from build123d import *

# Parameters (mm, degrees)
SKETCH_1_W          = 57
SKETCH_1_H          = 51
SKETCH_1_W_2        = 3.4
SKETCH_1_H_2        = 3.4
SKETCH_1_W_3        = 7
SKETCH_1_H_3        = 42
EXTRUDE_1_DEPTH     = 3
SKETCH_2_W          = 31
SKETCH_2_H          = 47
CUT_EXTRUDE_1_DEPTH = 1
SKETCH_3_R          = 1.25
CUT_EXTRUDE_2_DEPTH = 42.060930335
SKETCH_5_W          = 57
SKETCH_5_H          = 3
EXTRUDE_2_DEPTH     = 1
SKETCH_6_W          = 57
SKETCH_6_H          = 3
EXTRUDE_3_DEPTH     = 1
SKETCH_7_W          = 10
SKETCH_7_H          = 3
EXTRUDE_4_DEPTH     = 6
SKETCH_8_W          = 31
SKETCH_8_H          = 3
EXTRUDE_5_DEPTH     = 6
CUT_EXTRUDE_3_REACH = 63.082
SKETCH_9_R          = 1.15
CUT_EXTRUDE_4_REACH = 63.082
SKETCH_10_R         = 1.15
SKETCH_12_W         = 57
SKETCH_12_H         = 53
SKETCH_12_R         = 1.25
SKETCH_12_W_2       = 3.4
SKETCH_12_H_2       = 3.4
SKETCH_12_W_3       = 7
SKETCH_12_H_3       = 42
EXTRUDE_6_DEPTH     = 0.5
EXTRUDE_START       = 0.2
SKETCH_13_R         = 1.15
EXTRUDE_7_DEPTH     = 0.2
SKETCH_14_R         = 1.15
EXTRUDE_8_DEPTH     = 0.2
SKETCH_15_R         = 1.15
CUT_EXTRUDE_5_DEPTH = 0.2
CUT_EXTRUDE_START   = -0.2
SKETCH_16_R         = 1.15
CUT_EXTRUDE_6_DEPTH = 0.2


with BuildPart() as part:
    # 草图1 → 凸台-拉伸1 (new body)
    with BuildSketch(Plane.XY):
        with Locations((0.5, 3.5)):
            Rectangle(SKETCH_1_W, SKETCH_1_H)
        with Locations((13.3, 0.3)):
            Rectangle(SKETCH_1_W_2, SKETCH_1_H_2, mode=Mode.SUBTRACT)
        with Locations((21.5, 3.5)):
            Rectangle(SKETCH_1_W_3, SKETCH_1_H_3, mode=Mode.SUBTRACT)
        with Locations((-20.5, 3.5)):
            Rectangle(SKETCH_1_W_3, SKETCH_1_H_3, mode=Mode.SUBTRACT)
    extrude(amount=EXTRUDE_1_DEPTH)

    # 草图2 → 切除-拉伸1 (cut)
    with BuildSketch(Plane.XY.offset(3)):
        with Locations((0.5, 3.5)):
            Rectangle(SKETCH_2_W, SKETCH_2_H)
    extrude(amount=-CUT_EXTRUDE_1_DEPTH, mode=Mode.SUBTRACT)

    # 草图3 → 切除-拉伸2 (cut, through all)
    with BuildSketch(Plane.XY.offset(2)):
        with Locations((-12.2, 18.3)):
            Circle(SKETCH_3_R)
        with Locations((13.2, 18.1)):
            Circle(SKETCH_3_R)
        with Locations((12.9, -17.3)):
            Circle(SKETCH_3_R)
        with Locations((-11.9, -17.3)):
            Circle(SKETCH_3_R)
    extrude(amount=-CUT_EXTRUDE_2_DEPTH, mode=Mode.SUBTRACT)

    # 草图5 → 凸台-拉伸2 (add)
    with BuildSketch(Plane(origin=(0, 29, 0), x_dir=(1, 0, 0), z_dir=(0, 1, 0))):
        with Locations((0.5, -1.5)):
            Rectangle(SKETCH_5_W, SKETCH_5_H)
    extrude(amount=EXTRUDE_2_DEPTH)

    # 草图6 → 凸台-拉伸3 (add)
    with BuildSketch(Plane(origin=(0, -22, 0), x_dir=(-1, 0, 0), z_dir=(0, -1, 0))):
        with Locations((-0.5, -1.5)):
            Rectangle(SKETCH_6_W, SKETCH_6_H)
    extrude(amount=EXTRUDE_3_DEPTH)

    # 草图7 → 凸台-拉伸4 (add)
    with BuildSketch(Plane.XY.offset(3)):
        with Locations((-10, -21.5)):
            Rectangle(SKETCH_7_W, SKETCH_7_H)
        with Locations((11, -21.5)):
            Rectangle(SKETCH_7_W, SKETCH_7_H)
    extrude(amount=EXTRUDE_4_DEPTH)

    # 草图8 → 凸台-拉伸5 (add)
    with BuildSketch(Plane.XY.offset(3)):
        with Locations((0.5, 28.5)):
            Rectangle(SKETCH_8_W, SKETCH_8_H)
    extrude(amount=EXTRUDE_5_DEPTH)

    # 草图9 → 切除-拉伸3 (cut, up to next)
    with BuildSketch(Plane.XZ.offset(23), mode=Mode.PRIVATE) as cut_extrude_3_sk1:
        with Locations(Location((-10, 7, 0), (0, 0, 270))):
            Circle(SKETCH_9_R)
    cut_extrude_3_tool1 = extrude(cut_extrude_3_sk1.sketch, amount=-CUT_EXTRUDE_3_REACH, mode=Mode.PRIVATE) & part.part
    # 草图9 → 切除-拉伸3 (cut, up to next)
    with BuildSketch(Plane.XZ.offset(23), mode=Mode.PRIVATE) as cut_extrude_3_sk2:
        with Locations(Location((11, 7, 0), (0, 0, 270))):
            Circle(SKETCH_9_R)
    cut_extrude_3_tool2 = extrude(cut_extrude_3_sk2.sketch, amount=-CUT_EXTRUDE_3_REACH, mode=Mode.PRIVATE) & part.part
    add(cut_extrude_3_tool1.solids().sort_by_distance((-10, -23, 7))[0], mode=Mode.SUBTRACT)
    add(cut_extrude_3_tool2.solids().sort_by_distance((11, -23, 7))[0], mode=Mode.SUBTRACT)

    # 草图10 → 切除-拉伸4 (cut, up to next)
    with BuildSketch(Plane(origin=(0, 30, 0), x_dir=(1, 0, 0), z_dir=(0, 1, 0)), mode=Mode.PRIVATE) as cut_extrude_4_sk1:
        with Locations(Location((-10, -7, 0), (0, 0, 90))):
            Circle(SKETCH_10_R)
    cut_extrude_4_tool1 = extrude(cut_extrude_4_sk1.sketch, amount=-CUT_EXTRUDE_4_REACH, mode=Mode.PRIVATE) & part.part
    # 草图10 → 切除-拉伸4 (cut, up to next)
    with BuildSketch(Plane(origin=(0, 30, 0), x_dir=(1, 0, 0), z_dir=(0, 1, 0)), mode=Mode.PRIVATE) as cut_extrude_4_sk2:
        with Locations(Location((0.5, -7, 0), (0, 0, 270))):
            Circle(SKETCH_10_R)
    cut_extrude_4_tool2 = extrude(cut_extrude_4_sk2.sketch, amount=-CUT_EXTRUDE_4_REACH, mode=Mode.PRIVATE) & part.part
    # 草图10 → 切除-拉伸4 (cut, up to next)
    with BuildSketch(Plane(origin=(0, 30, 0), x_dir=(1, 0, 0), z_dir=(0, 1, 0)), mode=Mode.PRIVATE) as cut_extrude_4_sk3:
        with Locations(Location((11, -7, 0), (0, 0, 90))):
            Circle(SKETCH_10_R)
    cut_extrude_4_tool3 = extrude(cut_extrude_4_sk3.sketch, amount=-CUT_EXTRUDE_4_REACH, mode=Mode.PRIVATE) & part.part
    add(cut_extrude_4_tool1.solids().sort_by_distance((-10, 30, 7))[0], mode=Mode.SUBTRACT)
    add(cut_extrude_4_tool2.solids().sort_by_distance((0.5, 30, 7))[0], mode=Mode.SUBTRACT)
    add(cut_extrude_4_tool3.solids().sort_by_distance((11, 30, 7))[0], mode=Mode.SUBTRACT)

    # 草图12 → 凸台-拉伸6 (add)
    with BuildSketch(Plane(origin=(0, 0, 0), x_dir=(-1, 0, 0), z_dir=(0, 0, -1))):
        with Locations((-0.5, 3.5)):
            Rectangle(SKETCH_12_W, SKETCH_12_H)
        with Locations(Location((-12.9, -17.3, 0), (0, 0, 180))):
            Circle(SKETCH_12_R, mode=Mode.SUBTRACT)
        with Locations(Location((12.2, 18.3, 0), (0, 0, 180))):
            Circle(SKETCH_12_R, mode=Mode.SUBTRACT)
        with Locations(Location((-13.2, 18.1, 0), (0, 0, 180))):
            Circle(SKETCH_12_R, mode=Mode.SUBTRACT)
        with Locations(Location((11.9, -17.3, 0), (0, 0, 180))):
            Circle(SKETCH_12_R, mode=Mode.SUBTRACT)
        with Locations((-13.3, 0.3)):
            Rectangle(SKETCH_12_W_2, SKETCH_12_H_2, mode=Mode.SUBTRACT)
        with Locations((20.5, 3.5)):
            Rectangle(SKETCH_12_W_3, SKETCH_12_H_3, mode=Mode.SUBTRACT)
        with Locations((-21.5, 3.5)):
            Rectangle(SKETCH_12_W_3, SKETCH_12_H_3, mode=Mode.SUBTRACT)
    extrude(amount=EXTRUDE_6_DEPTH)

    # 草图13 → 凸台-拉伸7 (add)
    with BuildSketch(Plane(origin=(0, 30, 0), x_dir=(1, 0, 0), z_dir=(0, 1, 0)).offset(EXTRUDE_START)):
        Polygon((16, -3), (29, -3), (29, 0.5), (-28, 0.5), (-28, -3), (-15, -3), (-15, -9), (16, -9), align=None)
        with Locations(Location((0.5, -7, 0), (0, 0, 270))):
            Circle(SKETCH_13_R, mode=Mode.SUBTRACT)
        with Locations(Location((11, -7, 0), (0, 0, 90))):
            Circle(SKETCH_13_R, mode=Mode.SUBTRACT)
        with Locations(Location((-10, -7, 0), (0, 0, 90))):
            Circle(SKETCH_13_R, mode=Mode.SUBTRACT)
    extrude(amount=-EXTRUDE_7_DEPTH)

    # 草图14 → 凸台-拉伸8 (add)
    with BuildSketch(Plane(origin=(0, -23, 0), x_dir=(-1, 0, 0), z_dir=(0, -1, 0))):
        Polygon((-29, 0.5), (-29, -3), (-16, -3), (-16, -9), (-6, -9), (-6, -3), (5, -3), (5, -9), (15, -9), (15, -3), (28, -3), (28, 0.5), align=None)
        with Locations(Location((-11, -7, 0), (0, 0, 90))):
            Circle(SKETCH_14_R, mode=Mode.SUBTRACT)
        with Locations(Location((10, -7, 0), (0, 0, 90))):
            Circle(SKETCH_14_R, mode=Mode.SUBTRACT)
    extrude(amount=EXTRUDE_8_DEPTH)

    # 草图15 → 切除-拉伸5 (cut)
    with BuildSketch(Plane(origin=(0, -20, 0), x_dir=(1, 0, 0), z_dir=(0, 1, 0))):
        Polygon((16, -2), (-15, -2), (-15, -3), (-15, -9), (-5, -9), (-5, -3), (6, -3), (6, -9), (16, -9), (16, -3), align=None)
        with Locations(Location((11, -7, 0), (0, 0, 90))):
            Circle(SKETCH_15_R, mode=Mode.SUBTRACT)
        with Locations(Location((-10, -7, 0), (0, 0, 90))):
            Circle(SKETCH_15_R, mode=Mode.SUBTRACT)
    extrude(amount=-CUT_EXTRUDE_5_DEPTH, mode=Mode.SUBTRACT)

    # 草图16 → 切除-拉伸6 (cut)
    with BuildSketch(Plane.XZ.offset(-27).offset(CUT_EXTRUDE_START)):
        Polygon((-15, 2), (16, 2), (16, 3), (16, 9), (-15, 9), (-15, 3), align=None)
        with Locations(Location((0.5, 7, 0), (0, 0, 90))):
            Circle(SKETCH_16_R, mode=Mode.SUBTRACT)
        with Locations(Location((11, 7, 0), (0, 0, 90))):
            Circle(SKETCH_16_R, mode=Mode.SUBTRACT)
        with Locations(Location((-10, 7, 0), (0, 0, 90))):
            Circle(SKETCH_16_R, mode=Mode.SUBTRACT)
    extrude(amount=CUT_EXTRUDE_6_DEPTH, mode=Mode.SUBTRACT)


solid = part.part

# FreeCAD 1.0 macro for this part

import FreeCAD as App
import Part
import Sketcher
Q = App.Units.Quantity

doc = App.newDocument("Part")
body = doc.addObject("PartDesign::Body", "Body")

# Sketch on XY plane
sketch1 = body.newObject("Sketcher::SketchObject", "Sketch")
sketch1.AttachmentSupport = (doc.getObject("XY_Plane"), [""])
sketch1.MapMode = "FlatFace"
sketch1.addGeometry([
    Part.LineSegment(App.Vector(-28, 29, 0), App.Vector(-28, -22, 0)),  # 0
    Part.LineSegment(App.Vector(-28, -22, 0), App.Vector(29, -22, 0)),  # 1
    Part.LineSegment(App.Vector(29, -22, 0), App.Vector(29, 29, 0)),  # 2
    Part.LineSegment(App.Vector(29, 29, 0), App.Vector(-28, 29, 0)),  # 3
    Part.LineSegment(App.Vector(15, -1.4, 0), App.Vector(11.6, -1.4, 0)),  # 4
    Part.LineSegment(App.Vector(11.6, -1.4, 0), App.Vector(11.6, 2, 0)),  # 5
    Part.LineSegment(App.Vector(11.6, 2, 0), App.Vector(15, 2, 0)),  # 6
    Part.LineSegment(App.Vector(15, 2, 0), App.Vector(15, -1.4, 0)),  # 7
    Part.LineSegment(App.Vector(-17, -17.5, 0), App.Vector(-24, -17.5, 0)),  # 8
    Part.LineSegment(App.Vector(-24, -17.5, 0), App.Vector(-24, 24.5, 0)),  # 9
    Part.LineSegment(App.Vector(-24, 24.5, 0), App.Vector(-17, 24.5, 0)),  # 10
    Part.LineSegment(App.Vector(-17, 24.5, 0), App.Vector(-17, -17.5, 0)),  # 11
    Part.LineSegment(App.Vector(25, -17.5, 0), App.Vector(18, -17.5, 0)),  # 12
    Part.LineSegment(App.Vector(18, -17.5, 0), App.Vector(18, 24.5, 0)),  # 13
    Part.LineSegment(App.Vector(18, 24.5, 0), App.Vector(25, 24.5, 0)),  # 14
    Part.LineSegment(App.Vector(25, 24.5, 0), App.Vector(25, -17.5, 0)),  # 15
], False)
sketch1.addConstraint([
    Sketcher.Constraint("Coincident", 0, 2, 1, 1),
    Sketcher.Constraint("Coincident", 1, 2, 2, 1),
    Sketcher.Constraint("Coincident", 2, 2, 3, 1),
    Sketcher.Constraint("Coincident", 3, 2, 0, 1),
    Sketcher.Constraint("Coincident", 4, 2, 5, 1),
    Sketcher.Constraint("Coincident", 5, 2, 6, 1),
    Sketcher.Constraint("Coincident", 6, 2, 7, 1),
    Sketcher.Constraint("Coincident", 7, 2, 4, 1),
    Sketcher.Constraint("Coincident", 8, 2, 9, 1),
    Sketcher.Constraint("Coincident", 9, 2, 10, 1),
    Sketcher.Constraint("Coincident", 10, 2, 11, 1),
    Sketcher.Constraint("Coincident", 11, 2, 8, 1),
    Sketcher.Constraint("Coincident", 12, 2, 13, 1),
    Sketcher.Constraint("Coincident", 13, 2, 14, 1),
    Sketcher.Constraint("Coincident", 14, 2, 15, 1),
    Sketcher.Constraint("Coincident", 15, 2, 12, 1),
    Sketcher.Constraint("Vertical", 0),
    Sketcher.Constraint("Horizontal", 1),
    Sketcher.Constraint("Vertical", 2),
    Sketcher.Constraint("Horizontal", 3),
    Sketcher.Constraint("Horizontal", 4),
    Sketcher.Constraint("Vertical", 5),
    Sketcher.Constraint("Horizontal", 6),
    Sketcher.Constraint("Vertical", 7),
    Sketcher.Constraint("Horizontal", 8),
    Sketcher.Constraint("Vertical", 9),
    Sketcher.Constraint("Horizontal", 10),
    Sketcher.Constraint("Vertical", 11),
    Sketcher.Constraint("Horizontal", 12),
    Sketcher.Constraint("Vertical", 13),
    Sketcher.Constraint("Horizontal", 14),
    Sketcher.Constraint("Vertical", 15),
    Sketcher.Constraint("Horizontal", 11, 2, 12, 2),
    Sketcher.Constraint("Horizontal", 10, 2, 13, 2),
    Sketcher.Constraint("Equal", 10, 12),
    Sketcher.Constraint("Equal", 6, 5),
    Sketcher.Constraint("DistanceX", 1, 1, 1, 2, Q("57 mm")),
    Sketcher.Constraint("DistanceX", 8, 2, 8, 1, Q("7 mm")),
    Sketcher.Constraint("DistanceY", 0, 2, 0, 1, Q("51 mm")),
    Sketcher.Constraint("DistanceY", 9, 1, 9, 2, Q("42 mm")),
    Sketcher.Constraint("DistanceX", 4, 2, 4, 1, Q("3.4 mm")),
    Sketcher.Constraint("DistanceX", 0, 2, -1, 1, Q("28 mm")),
    Sketcher.Constraint("DistanceY", 0, 2, -1, 1, Q("22 mm")),
    Sketcher.Constraint("DistanceY", -1, 1, 5, 2, Q("2 mm")),
    Sketcher.Constraint("DistanceX", -1, 1, 6, 2, Q("15 mm")),
    Sketcher.Constraint("DistanceX", 8, 2, -1, 1, Q("24 mm")),
    Sketcher.Constraint("DistanceX", -1, 1, 12, 2, Q("18 mm")),
    Sketcher.Constraint("DistanceY", 8, 2, -1, 1, Q("17.5 mm")),
])
pad1 = body.newObject("PartDesign::Pad", "Pad")
pad1.Profile = sketch1
pad1.Length = 3

# Sketch on XY plane
sketch2 = body.newObject("Sketcher::SketchObject", "Sketch001")
sketch2.AttachmentSupport = (doc.getObject("XY_Plane"), [""])
sketch2.MapMode = "FlatFace"
sketch2.AttachmentOffset = App.Placement(App.Vector(0, 0, 3), App.Rotation())
sketch2.addGeometry([
    Part.LineSegment(App.Vector(-15, 27, 0), App.Vector(-15, -20, 0)),
    Part.LineSegment(App.Vector(-15, -20, 0), App.Vector(16, -20, 0)),
    Part.LineSegment(App.Vector(16, -20, 0), App.Vector(16, 27, 0)),
    Part.LineSegment(App.Vector(16, 27, 0), App.Vector(-15, 27, 0)),
], False)
sketch2.addConstraint([
    Sketcher.Constraint("Coincident", 0, 2, 1, 1),
    Sketcher.Constraint("Coincident", 1, 2, 2, 1),
    Sketcher.Constraint("Coincident", 2, 2, 3, 1),
    Sketcher.Constraint("Coincident", 3, 2, 0, 1),
    Sketcher.Constraint("Vertical", 0),
    Sketcher.Constraint("Horizontal", 1),
    Sketcher.Constraint("Vertical", 2),
    Sketcher.Constraint("Horizontal", 3),
    Sketcher.Constraint("DistanceX", 1, 1, 1, 2, Q("31 mm")),
    Sketcher.Constraint("DistanceY", 0, 2, 0, 1, Q("47 mm")),
    Sketcher.Constraint("DistanceX", 0, 2, -1, 1, Q("15 mm")),
    Sketcher.Constraint("DistanceY", 0, 2, -1, 1, Q("20 mm")),
])
pocket1 = body.newObject("PartDesign::Pocket", "Pocket")
pocket1.Profile = sketch2
pocket1.Length = 1

# Sketch on XY plane
sketch3 = body.newObject("Sketcher::SketchObject", "Sketch002")
sketch3.AttachmentSupport = (doc.getObject("XY_Plane"), [""])
sketch3.MapMode = "FlatFace"
sketch3.AttachmentOffset = App.Placement(App.Vector(0, 0, 2), App.Rotation())
sketch3.addGeometry([
    Part.Circle(App.Vector(-12.2, 18.3, 0), App.Vector(0, 0, 1), 1.2),
    Part.Circle(App.Vector(13.2, 18.1, 0), App.Vector(0, 0, 1), 1.2),
    Part.Circle(App.Vector(12.9, -17.3, 0), App.Vector(0, 0, 1), 1.2),
    Part.Circle(App.Vector(-11.9, -17.3, 0), App.Vector(0, 0, 1), 1.2),
], False)
sketch3.addConstraint([
    Sketcher.Constraint("Equal", 0, 1),
    Sketcher.Constraint("Equal", 1, 2),
    Sketcher.Constraint("Equal", 2, 3),
    Sketcher.Constraint("Horizontal", 2, 3, 3, 3),
    Sketcher.Constraint("Diameter", 0, Q("2.5 mm")),
    Sketcher.Constraint("DistanceX", 0, 3, -1, 1, Q("12.2 mm")),
    Sketcher.Constraint("DistanceY", -1, 1, 0, 3, Q("18.3 mm")),
    Sketcher.Constraint("DistanceX", -1, 1, 1, 3, Q("13.2 mm")),
    Sketcher.Constraint("DistanceY", -1, 1, 1, 3, Q("18.1 mm")),
    Sketcher.Constraint("DistanceX", -1, 1, 2, 3, Q("12.9 mm")),
    Sketcher.Constraint("DistanceY", 2, 3, -1, 1, Q("17.3 mm")),
    Sketcher.Constraint("DistanceX", 3, 3, -1, 1, Q("11.9 mm")),
])
pocket2 = body.newObject("PartDesign::Pocket", "Pocket001")
pocket2.Profile = sketch3
pocket2.Type = "ThroughAll"

# Sketch on XZ plane
sketch4 = body.newObject("Sketcher::SketchObject", "Sketch003")
sketch4.AttachmentSupport = (doc.getObject("XZ_Plane"), [""])
sketch4.MapMode = "FlatFace"
sketch4.AttachmentOffset = App.Placement(App.Vector(0, 0, -29), App.Rotation())
sketch4.addGeometry([
    Part.LineSegment(App.Vector(-28, 0, 0), App.Vector(-28, 3, 0)),
    Part.LineSegment(App.Vector(-28, 3, 0), App.Vector(29, 3, 0)),
    Part.LineSegment(App.Vector(29, 3, 0), App.Vector(29, 0, 0)),
    Part.LineSegment(App.Vector(29, 0, 0), App.Vector(-28, 0, 0)),
], False)
sketch4.addConstraint([
    Sketcher.Constraint("Coincident", 0, 2, 1, 1),
    Sketcher.Constraint("Coincident", 1, 2, 2, 1),
    Sketcher.Constraint("Coincident", 2, 2, 3, 1),
    Sketcher.Constraint("Coincident", 3, 2, 0, 1),
    Sketcher.Constraint("Vertical", 0),
    Sketcher.Constraint("Horizontal", 1),
    Sketcher.Constraint("Vertical", 2),
    Sketcher.Constraint("Horizontal", 3),
    Sketcher.Constraint("PointOnObject", 2, 2, -1),
    Sketcher.Constraint("DistanceX", 1, 1, 1, 2, Q("57 mm")),
    Sketcher.Constraint("DistanceY", 0, 1, 0, 2, Q("3 mm")),
    Sketcher.Constraint("DistanceX", 0, 2, -1, 1, Q("28 mm")),
])
pad2 = body.newObject("PartDesign::Pad", "Pad001")
pad2.Profile = sketch4
pad2.Length = 1
pad2.Reversed = True

# Sketch on XZ plane
sketch5 = body.newObject("Sketcher::SketchObject", "Sketch004")
sketch5.AttachmentSupport = (doc.getObject("XZ_Plane"), [""])
sketch5.MapMode = "FlatFace"
sketch5.AttachmentOffset = App.Placement(App.Vector(0, 0, 22), App.Rotation())
sketch5.addGeometry([
    Part.LineSegment(App.Vector(29, 0, 0), App.Vector(29, 3, 0)),
    Part.LineSegment(App.Vector(29, 3, 0), App.Vector(-28, 3, 0)),
    Part.LineSegment(App.Vector(-28, 3, 0), App.Vector(-28, 0, 0)),
    Part.LineSegment(App.Vector(-28, 0, 0), App.Vector(29, 0, 0)),
], False)
sketch5.addConstraint([
    Sketcher.Constraint("Coincident", 0, 2, 1, 1),
    Sketcher.Constraint("Coincident", 1, 2, 2, 1),
    Sketcher.Constraint("Coincident", 2, 2, 3, 1),
    Sketcher.Constraint("Coincident", 3, 2, 0, 1),
    Sketcher.Constraint("Vertical", 0),
    Sketcher.Constraint("Horizontal", 1),
    Sketcher.Constraint("Vertical", 2),
    Sketcher.Constraint("Horizontal", 3),
    Sketcher.Constraint("PointOnObject", 2, 2, -1),
    Sketcher.Constraint("DistanceX", 1, 2, 1, 1, Q("57 mm")),
    Sketcher.Constraint("DistanceY", 0, 1, 0, 2, Q("3 mm")),
    Sketcher.Constraint("DistanceX", -1, 1, 0, 2, Q("29 mm")),
])
pad3 = body.newObject("PartDesign::Pad", "Pad002")
pad3.Profile = sketch5
pad3.Length = 1

# Sketch on XY plane
sketch6 = body.newObject("Sketcher::SketchObject", "Sketch005")
sketch6.AttachmentSupport = (doc.getObject("XY_Plane"), [""])
sketch6.MapMode = "FlatFace"
sketch6.AttachmentOffset = App.Placement(App.Vector(0, 0, 3), App.Rotation())
sketch6.addGeometry([
    Part.LineSegment(App.Vector(-15, -20, 0), App.Vector(-15, -23, 0)),  # 0
    Part.LineSegment(App.Vector(-15, -23, 0), App.Vector(-5, -23, 0)),  # 1
    Part.LineSegment(App.Vector(-5, -23, 0), App.Vector(-5, -20, 0)),  # 2
    Part.LineSegment(App.Vector(-5, -20, 0), App.Vector(-15, -20, 0)),  # 3
    Part.LineSegment(App.Vector(6, -20, 0), App.Vector(6, -23, 0)),  # 4
    Part.LineSegment(App.Vector(6, -23, 0), App.Vector(16, -23, 0)),  # 5
    Part.LineSegment(App.Vector(16, -23, 0), App.Vector(16, -20, 0)),  # 6
    Part.LineSegment(App.Vector(16, -20, 0), App.Vector(6, -20, 0)),  # 7
], False)
sketch6.addConstraint([
    Sketcher.Constraint("Coincident", 0, 2, 1, 1),
    Sketcher.Constraint("Coincident", 1, 2, 2, 1),
    Sketcher.Constraint("Coincident", 2, 2, 3, 1),
    Sketcher.Constraint("Coincident", 3, 2, 0, 1),
    Sketcher.Constraint("Coincident", 4, 2, 5, 1),
    Sketcher.Constraint("Coincident", 5, 2, 6, 1),
    Sketcher.Constraint("Coincident", 6, 2, 7, 1),
    Sketcher.Constraint("Coincident", 7, 2, 4, 1),
    Sketcher.Constraint("Vertical", 0),
    Sketcher.Constraint("Horizontal", 1),
    Sketcher.Constraint("Vertical", 2),
    Sketcher.Constraint("Horizontal", 3),
    Sketcher.Constraint("Vertical", 4),
    Sketcher.Constraint("Horizontal", 5),
    Sketcher.Constraint("Vertical", 6),
    Sketcher.Constraint("Horizontal", 7),
    Sketcher.Constraint("Horizontal", 1, 2, 4, 2),
    Sketcher.Constraint("Horizontal", 3, 2, 6, 2),
    Sketcher.Constraint("Equal", 3, 5),
    Sketcher.Constraint("DistanceX", 1, 1, 1, 2, Q("10 mm")),
    Sketcher.Constraint("DistanceY", 0, 2, 0, 1, Q("3 mm")),
    Sketcher.Constraint("DistanceX", 0, 2, -1, 1, Q("15 mm")),
    Sketcher.Constraint("DistanceY", 0, 2, -1, 1, Q("23 mm")),
    Sketcher.Constraint("DistanceX", -1, 1, 4, 2, Q("6 mm")),
])
pad4 = body.newObject("PartDesign::Pad", "Pad003")
pad4.Profile = sketch6
pad4.Length = 6

# Sketch on XY plane
sketch7 = body.newObject("Sketcher::SketchObject", "Sketch006")
sketch7.AttachmentSupport = (doc.getObject("XY_Plane"), [""])
sketch7.MapMode = "FlatFace"
sketch7.AttachmentOffset = App.Placement(App.Vector(0, 0, 3), App.Rotation())
sketch7.addGeometry([
    Part.LineSegment(App.Vector(-15, 30, 0), App.Vector(-15, 27, 0)),
    Part.LineSegment(App.Vector(-15, 27, 0), App.Vector(16, 27, 0)),
    Part.LineSegment(App.Vector(16, 27, 0), App.Vector(16, 30, 0)),
    Part.LineSegment(App.Vector(16, 30, 0), App.Vector(-15, 30, 0)),
], False)
sketch7.addConstraint([
    Sketcher.Constraint("Coincident", 0, 2, 1, 1),
    Sketcher.Constraint("Coincident", 1, 2, 2, 1),
    Sketcher.Constraint("Coincident", 2, 2, 3, 1),
    Sketcher.Constraint("Coincident", 3, 2, 0, 1),
    Sketcher.Constraint("Vertical", 0),
    Sketcher.Constraint("Horizontal", 1),
    Sketcher.Constraint("Vertical", 2),
    Sketcher.Constraint("Horizontal", 3),
    Sketcher.Constraint("DistanceX", 1, 1, 1, 2, Q("31 mm")),
    Sketcher.Constraint("DistanceY", 0, 2, 0, 1, Q("3 mm")),
    Sketcher.Constraint("DistanceX", 0, 2, -1, 1, Q("15 mm")),
    Sketcher.Constraint("DistanceY", -1, 1, 0, 2, Q("27 mm")),
])
pad5 = body.newObject("PartDesign::Pad", "Pad004")
pad5.Profile = sketch7
pad5.Length = 6

# Sketch on XZ plane
sketch8 = body.newObject("Sketcher::SketchObject", "Sketch007")
sketch8.AttachmentSupport = (doc.getObject("XZ_Plane"), [""])
sketch8.MapMode = "FlatFace"
sketch8.AttachmentOffset = App.Placement(App.Vector(0, 0, 23), App.Rotation())
sketch8.addGeometry(Part.Circle(App.Vector(-10, 7, 0), App.Vector(0, 0, 1), 1.1), False)
sketch8.addConstraint([
    Sketcher.Constraint("Diameter", 0, Q("2.3 mm")),
    Sketcher.Constraint("DistanceX", 0, 3, -1, 1, Q("10 mm")),
    Sketcher.Constraint("DistanceY", -1, 1, 0, 3, Q("7 mm")),
])
pocket3 = body.newObject("PartDesign::Pocket", "Pocket002")
pocket3.Profile = sketch8
pocket3.Type = "UpToFirst"

# Sketch on XZ plane
sketch9 = body.newObject("Sketcher::SketchObject", "Sketch008")
sketch9.AttachmentSupport = (doc.getObject("XZ_Plane"), [""])
sketch9.MapMode = "FlatFace"
sketch9.AttachmentOffset = App.Placement(App.Vector(0, 0, 23), App.Rotation())
sketch9.addGeometry(Part.Circle(App.Vector(11, 7, 0), App.Vector(0, 0, 1), 1.1), False)
sketch9.addConstraint([
    Sketcher.Constraint("Diameter", 0, Q("2.3 mm")),
    Sketcher.Constraint("DistanceX", -1, 1, 0, 3, Q("11 mm")),
    Sketcher.Constraint("DistanceY", -1, 1, 0, 3, Q("7 mm")),
])
pocket4 = body.newObject("PartDesign::Pocket", "Pocket003")
pocket4.Profile = sketch9
pocket4.Type = "UpToFirst"

# Sketch on XZ plane
sketch10 = body.newObject("Sketcher::SketchObject", "Sketch009")
sketch10.AttachmentSupport = (doc.getObject("XZ_Plane"), [""])
sketch10.MapMode = "FlatFace"
sketch10.AttachmentOffset = App.Placement(App.Vector(0, 0, -30), App.Rotation())
sketch10.addGeometry(Part.Circle(App.Vector(-10, 7, 0), App.Vector(0, 0, 1), 1.1), False)
sketch10.addConstraint([
    Sketcher.Constraint("Diameter", 0, Q("2.3 mm")),
    Sketcher.Constraint("DistanceX", 0, 3, -1, 1, Q("10 mm")),
    Sketcher.Constraint("DistanceY", -1, 1, 0, 3, Q("7 mm")),
])
pocket5 = body.newObject("PartDesign::Pocket", "Pocket004")
pocket5.Profile = sketch10
pocket5.Type = "UpToFirst"
pocket5.Reversed = True

# Sketch on XZ plane
sketch11 = body.newObject("Sketcher::SketchObject", "Sketch010")
sketch11.AttachmentSupport = (doc.getObject("XZ_Plane"), [""])
sketch11.MapMode = "FlatFace"
sketch11.AttachmentOffset = App.Placement(App.Vector(0, 0, -30), App.Rotation())
sketch11.addGeometry(Part.Circle(App.Vector(0.5, 7, 0), App.Vector(0, 0, 1), 1.1), False)
sketch11.addConstraint([
    Sketcher.Constraint("Diameter", 0, Q("2.3 mm")),
    Sketcher.Constraint("DistanceY", -1, 1, 0, 3, Q("7 mm")),
    Sketcher.Constraint("DistanceX", -1, 1, 0, 3, Q("0.5 mm")),
])
pocket6 = body.newObject("PartDesign::Pocket", "Pocket005")
pocket6.Profile = sketch11
pocket6.Type = "UpToFirst"
pocket6.Reversed = True

# Sketch on XZ plane
sketch12 = body.newObject("Sketcher::SketchObject", "Sketch011")
sketch12.AttachmentSupport = (doc.getObject("XZ_Plane"), [""])
sketch12.MapMode = "FlatFace"
sketch12.AttachmentOffset = App.Placement(App.Vector(0, 0, -30), App.Rotation())
sketch12.addGeometry(Part.Circle(App.Vector(11, 7, 0), App.Vector(0, 0, 1), 1.1), False)
sketch12.addConstraint([
    Sketcher.Constraint("Diameter", 0, Q("2.3 mm")),
    Sketcher.Constraint("DistanceX", -1, 1, 0, 3, Q("11 mm")),
    Sketcher.Constraint("DistanceY", -1, 1, 0, 3, Q("7 mm")),
])
pocket7 = body.newObject("PartDesign::Pocket", "Pocket006")
pocket7.Profile = sketch12
pocket7.Type = "UpToFirst"
pocket7.Reversed = True

# Sketch on XY plane
sketch13 = body.newObject("Sketcher::SketchObject", "Sketch012")
sketch13.AttachmentSupport = (doc.getObject("XY_Plane"), [""])
sketch13.MapMode = "FlatFace"
sketch13.addGeometry([
    Part.LineSegment(App.Vector(29, 30, 0), App.Vector(29, -23, 0)),  # 0
    Part.LineSegment(App.Vector(29, -23, 0), App.Vector(-28, -23, 0)),  # 1
    Part.LineSegment(App.Vector(-28, -23, 0), App.Vector(-28, 30, 0)),  # 2
    Part.LineSegment(App.Vector(-28, 30, 0), App.Vector(29, 30, 0)),  # 3
    Part.Circle(App.Vector(12.9, -17.3, 0), App.Vector(0, 0, 1), 1.2),  # 4
    Part.LineSegment(App.Vector(11.6, -1.4, 0), App.Vector(15, -1.4, 0)),  # 5
    Part.LineSegment(App.Vector(15, -1.4, 0), App.Vector(15, 2, 0)),  # 6
    Part.LineSegment(App.Vector(15, 2, 0), App.Vector(11.6, 2, 0)),  # 7
    Part.LineSegment(App.Vector(11.6, 2, 0), App.Vector(11.6, -1.4, 0)),  # 8
    Part.Circle(App.Vector(-11.9, -17.3, 0), App.Vector(0, 0, 1), 1.2),  # 9
    Part.LineSegment(App.Vector(18, -17.5, 0), App.Vector(25, -17.5, 0)),  # 10
    Part.LineSegment(App.Vector(25, -17.5, 0), App.Vector(25, 24.5, 0)),  # 11
    Part.LineSegment(App.Vector(25, 24.5, 0), App.Vector(18, 24.5, 0)),  # 12
    Part.LineSegment(App.Vector(18, 24.5, 0), App.Vector(18, -17.5, 0)),  # 13
    Part.Circle(App.Vector(13.2, 18.1, 0), App.Vector(0, 0, 1), 1.2),  # 14
    Part.LineSegment(App.Vector(-24, -17.5, 0), App.Vector(-17, -17.5, 0)),  # 15
    Part.LineSegment(App.Vector(-17, -17.5, 0), App.Vector(-17, 24.5, 0)),  # 16
    Part.LineSegment(App.Vector(-17, 24.5, 0), App.Vector(-24, 24.5, 0)),  # 17
    Part.LineSegment(App.Vector(-24, 24.5, 0), App.Vector(-24, -17.5, 0)),  # 18
    Part.Circle(App.Vector(-12.2, 18.3, 0), App.Vector(0, 0, 1), 1.2),  # 19
], False)
sketch13.addConstraint([
    Sketcher.Constraint("Coincident", 0, 2, 1, 1),
    Sketcher.Constraint("Coincident", 1, 2, 2, 1),
    Sketcher.Constraint("Coincident", 2, 2, 3, 1),
    Sketcher.Constraint("Coincident", 3, 2, 0, 1),
    Sketcher.Constraint("Coincident", 5, 2, 6, 1),
    Sketcher.Constraint("Coincident", 6, 2, 7, 1),
    Sketcher.Constraint("Coincident", 7, 2, 8, 1),
    Sketcher.Constraint("Coincident", 8, 2, 5, 1),
    Sketcher.Constraint("Coincident", 10, 2, 11, 1),
    Sketcher.Constraint("Coincident", 11, 2, 12, 1),
    Sketcher.Constraint("Coincident", 12, 2, 13, 1),
    Sketcher.Constraint("Coincident", 13, 2, 10, 1),
    Sketcher.Constraint("Coincident", 15, 2, 16, 1),
    Sketcher.Constraint("Coincident", 16, 2, 17, 1),
    Sketcher.Constraint("Coincident", 17, 2, 18, 1),
    Sketcher.Constraint("Coincident", 18, 2, 15, 1),
    Sketcher.Constraint("Vertical", 0),
    Sketcher.Constraint("Horizontal", 1),
    Sketcher.Constraint("Vertical", 2),
    Sketcher.Constraint("Horizontal", 3),
    Sketcher.Constraint("Horizontal", 5),
    Sketcher.Constraint("Vertical", 6),
    Sketcher.Constraint("Horizontal", 7),
    Sketcher.Constraint("Vertical", 8),
    Sketcher.Constraint("Horizontal", 10),
    Sketcher.Constraint("Vertical", 11),
    Sketcher.Constraint("Horizontal", 12),
    Sketcher.Constraint("Vertical", 13),
    Sketcher.Constraint("Horizontal", 15),
    Sketcher.Constraint("Vertical", 16),
    Sketcher.Constraint("Horizontal", 17),
    Sketcher.Constraint("Vertical", 18),
    Sketcher.Constraint("Equal", 4, 9),
    Sketcher.Constraint("Equal", 9, 14),
    Sketcher.Constraint("Equal", 14, 19),
    Sketcher.Constraint("Horizontal", 4, 3, 9, 3),
    Sketcher.Constraint("Horizontal", 13, 2, 15, 2),
    Sketcher.Constraint("Horizontal", 12, 2, 16, 2),
    Sketcher.Constraint("Equal", 12, 15),
    Sketcher.Constraint("Equal", 7, 6),
    Sketcher.Constraint("Diameter", 4, Q("2.5 mm")),
    Sketcher.Constraint("DistanceX", 1, 2, 1, 1, Q("57 mm")),
    Sketcher.Constraint("DistanceX", 10, 1, 10, 2, Q("7 mm")),
    Sketcher.Constraint("DistanceY", 0, 2, 0, 1, Q("53 mm")),
    Sketcher.Constraint("DistanceY", 11, 1, 11, 2, Q("42 mm")),
    Sketcher.Constraint("DistanceX", 5, 1, 5, 2, Q("3.4 mm")),
    Sketcher.Constraint("DistanceX", -1, 1, 0, 2, Q("29 mm")),
    Sketcher.Constraint("DistanceY", 0, 2, -1, 1, Q("23 mm")),
    Sketcher.Constraint("DistanceX", -1, 1, 5, 2, Q("15 mm")),
    Sketcher.Constraint("DistanceY", -1, 1, 6, 2, Q("2 mm")),
    Sketcher.Constraint("DistanceX", -1, 1, 10, 2, Q("25 mm")),
    Sketcher.Constraint("DistanceX", 15, 2, -1, 1, Q("17 mm")),
    Sketcher.Constraint("DistanceX", -1, 1, 4, 3, Q("12.9 mm")),
    Sketcher.Constraint("DistanceY", 4, 3, -1, 1, Q("17.3 mm")),
    Sketcher.Constraint("DistanceX", 9, 3, -1, 1, Q("11.9 mm")),
    Sketcher.Constraint("DistanceX", -1, 1, 14, 3, Q("13.2 mm")),
    Sketcher.Constraint("DistanceY", -1, 1, 14, 3, Q("18.1 mm")),
    Sketcher.Constraint("DistanceX", 19, 3, -1, 1, Q("12.2 mm")),
    Sketcher.Constraint("DistanceY", -1, 1, 19, 3, Q("18.3 mm")),
    Sketcher.Constraint("DistanceY", 10, 2, -1, 1, Q("17.5 mm")),
])
pad6 = body.newObject("PartDesign::Pad", "Pad005")
pad6.Profile = sketch13
pad6.Length = 0.5
pad6.Reversed = True

# Sketch on XZ plane
sketch14 = body.newObject("Sketcher::SketchObject", "Sketch013")
sketch14.AttachmentSupport = (doc.getObject("XZ_Plane"), [""])
sketch14.MapMode = "FlatFace"
sketch14.AttachmentOffset = App.Placement(App.Vector(0, 0, -30.2), App.Rotation())
sketch14.addGeometry([
    Part.LineSegment(App.Vector(16, 3, 0), App.Vector(29, 3, 0)),  # 0
    Part.LineSegment(App.Vector(29, 3, 0), App.Vector(29, -0.5, 0)),  # 1
    Part.LineSegment(App.Vector(29, -0.5, 0), App.Vector(-28, -0.5, 0)),  # 2
    Part.LineSegment(App.Vector(-28, -0.5, 0), App.Vector(-28, 3, 0)),  # 3
    Part.LineSegment(App.Vector(-28, 3, 0), App.Vector(-15, 3, 0)),  # 4
    Part.LineSegment(App.Vector(-15, 3, 0), App.Vector(-15, 9, 0)),  # 5
    Part.LineSegment(App.Vector(-15, 9, 0), App.Vector(16, 9, 0)),  # 6
    Part.LineSegment(App.Vector(16, 9, 0), App.Vector(16, 3, 0)),  # 7
    Part.Circle(App.Vector(-10, 7, 0), App.Vector(0, 0, 1), 1.1),  # 8
    Part.Circle(App.Vector(0.5, 7, 0), App.Vector(0, 0, 1), 1.1),  # 9
    Part.Circle(App.Vector(11, 7, 0), App.Vector(0, 0, 1), 1.1),  # 10
], False)
sketch14.addConstraint([
    Sketcher.Constraint("Coincident", 0, 2, 1, 1),
    Sketcher.Constraint("Coincident", 1, 2, 2, 1),
    Sketcher.Constraint("Coincident", 2, 2, 3, 1),
    Sketcher.Constraint("Coincident", 3, 2, 4, 1),
    Sketcher.Constraint("Coincident", 4, 2, 5, 1),
    Sketcher.Constraint("Coincident", 5, 2, 6, 1),
    Sketcher.Constraint("Coincident", 6, 2, 7, 1),
    Sketcher.Constraint("Coincident", 7, 2, 0, 1),
    Sketcher.Constraint("Horizontal", 0),
    Sketcher.Constraint("Vertical", 1),
    Sketcher.Constraint("Horizontal", 2),
    Sketcher.Constraint("Vertical", 3),
    Sketcher.Constraint("Horizontal", 4),
    Sketcher.Constraint("Vertical", 5),
    Sketcher.Constraint("Horizontal", 6),
    Sketcher.Constraint("Vertical", 7),
    Sketcher.Constraint("Equal", 8, 9),
    Sketcher.Constraint("Equal", 9, 10),
    Sketcher.Constraint("Horizontal", 8, 3, 9, 3),
    Sketcher.Constraint("Horizontal", 9, 3, 10, 3),
    Sketcher.Constraint("Horizontal", 0, 2, 3, 2),
    Sketcher.Constraint("Equal", 0, 4),
    Sketcher.Constraint("Diameter", 8, Q("2.3 mm")),
    Sketcher.Constraint("DistanceX", 0, 1, 0, 2, Q("13 mm")),
    Sketcher.Constraint("DistanceX", 2, 2, 2, 1, Q("57 mm")),
    Sketcher.Constraint("DistanceY", 5, 1, 5, 2, Q("6 mm")),
    Sketcher.Constraint("DistanceY", 1, 2, 1, 1, Q("3.5 mm")),
    Sketcher.Constraint("DistanceX", 8, 3, -1, 1, Q("10 mm")),
    Sketcher.Constraint("DistanceY", -1, 1, 8, 3, Q("7 mm")),
    Sketcher.Constraint("DistanceX", -1, 1, 10, 3, Q("11 mm")),
    Sketcher.Constraint("DistanceX", -1, 1, 0, 2, Q("29 mm")),
    Sketcher.Constraint("DistanceY", -1, 1, 0, 2, Q("3 mm")),
    Sketcher.Constraint("DistanceX", -1, 1, 9, 3, Q("0.5 mm")),
])
pad7 = body.newObject("PartDesign::Pad", "Pad006")
pad7.Profile = sketch14
pad7.Length = 0.2

# Sketch on XZ plane
sketch15 = body.newObject("Sketcher::SketchObject", "Sketch014")
sketch15.AttachmentSupport = (doc.getObject("XZ_Plane"), [""])
sketch15.MapMode = "FlatFace"
sketch15.AttachmentOffset = App.Placement(App.Vector(0, 0, 23), App.Rotation())
sketch15.addGeometry([
    Part.LineSegment(App.Vector(29, -0.5, 0), App.Vector(29, 3, 0)),  # 0
    Part.LineSegment(App.Vector(29, 3, 0), App.Vector(16, 3, 0)),  # 1
    Part.LineSegment(App.Vector(16, 3, 0), App.Vector(16, 9, 0)),  # 2
    Part.LineSegment(App.Vector(16, 9, 0), App.Vector(6, 9, 0)),  # 3
    Part.LineSegment(App.Vector(6, 9, 0), App.Vector(6, 3, 0)),  # 4
    Part.LineSegment(App.Vector(6, 3, 0), App.Vector(-5, 3, 0)),  # 5
    Part.LineSegment(App.Vector(-5, 3, 0), App.Vector(-5, 9, 0)),  # 6
    Part.LineSegment(App.Vector(-5, 9, 0), App.Vector(-15, 9, 0)),  # 7
    Part.LineSegment(App.Vector(-15, 9, 0), App.Vector(-15, 3, 0)),  # 8
    Part.LineSegment(App.Vector(-15, 3, 0), App.Vector(-28, 3, 0)),  # 9
    Part.LineSegment(App.Vector(-28, 3, 0), App.Vector(-28, -0.5, 0)),  # 10
    Part.LineSegment(App.Vector(-28, -0.5, 0), App.Vector(29, -0.5, 0)),  # 11
    Part.Circle(App.Vector(11, 7, 0), App.Vector(0, 0, 1), 1.1),  # 12
    Part.Circle(App.Vector(-10, 7, 0), App.Vector(0, 0, 1), 1.1),  # 13
], False)
sketch15.addConstraint([
    Sketcher.Constraint("Coincident", 0, 2, 1, 1),
    Sketcher.Constraint("Coincident", 1, 2, 2, 1),
    Sketcher.Constraint("Coincident", 2, 2, 3, 1),
    Sketcher.Constraint("Coincident", 3, 2, 4, 1),
    Sketcher.Constraint("Coincident", 4, 2, 5, 1),
    Sketcher.Constraint("Coincident", 5, 2, 6, 1),
    Sketcher.Constraint("Coincident", 6, 2, 7, 1),
    Sketcher.Constraint("Coincident", 7, 2, 8, 1),
    Sketcher.Constraint("Coincident", 8, 2, 9, 1),
    Sketcher.Constraint("Coincident", 9, 2, 10, 1),
    Sketcher.Constraint("Coincident", 10, 2, 11, 1),
    Sketcher.Constraint("Coincident", 11, 2, 0, 1),
    Sketcher.Constraint("Vertical", 0),
    Sketcher.Constraint("Horizontal", 1),
    Sketcher.Constraint("Vertical", 2),
    Sketcher.Constraint("Horizontal", 3),
    Sketcher.Constraint("Vertical", 4),
    Sketcher.Constraint("Horizontal", 5),
    Sketcher.Constraint("Vertical", 6),
    Sketcher.Constraint("Horizontal", 7),
    Sketcher.Constraint("Vertical", 8),
    Sketcher.Constraint("Horizontal", 9),
    Sketcher.Constraint("Vertical", 10),
    Sketcher.Constraint("Horizontal", 11),
    Sketcher.Constraint("Equal", 12, 13),
    Sketcher.Constraint("Horizontal", 12, 3, 13, 3),
    Sketcher.Constraint("Horizontal", 1, 2, 4, 2),
    Sketcher.Constraint("Horizontal", 3, 2, 6, 2),
    Sketcher.Constraint("Horizontal", 5, 2, 8, 2),
    Sketcher.Constraint("Equal", 3, 7),
    Sketcher.Constraint("Equal", 1, 9),
    Sketcher.Constraint("Diameter", 12, Q("2.3 mm")),
    Sketcher.Constraint("DistanceX", 1, 2, 1, 1, Q("13 mm")),
    Sketcher.Constraint("DistanceX", 3, 2, 3, 1, Q("10 mm")),
    Sketcher.Constraint("DistanceX", 5, 2, 5, 1, Q("11 mm")),
    Sketcher.Constraint("DistanceY", 2, 1, 2, 2, Q("6 mm")),
    Sketcher.Constraint("DistanceY", 0, 1, 0, 2, Q("3.5 mm")),
    Sketcher.Constraint("DistanceX", -1, 1, 12, 3, Q("11 mm")),
    Sketcher.Constraint("DistanceY", -1, 1, 12, 3, Q("7 mm")),
    Sketcher.Constraint("DistanceX", 13, 3, -1, 1, Q("10 mm")),
    Sketcher.Constraint("DistanceX", -1, 1, 0, 2, Q("29 mm")),
    Sketcher.Constraint("DistanceY", -1, 1, 0, 2, Q("3 mm")),
])
pad8 = body.newObject("PartDesign::Pad", "Pad007")
pad8.Profile = sketch15
pad8.Length = 0.2

# Sketch on XZ plane
sketch16 = body.newObject("Sketcher::SketchObject", "Sketch015")
sketch16.AttachmentSupport = (doc.getObject("XZ_Plane"), [""])
sketch16.MapMode = "FlatFace"
sketch16.AttachmentOffset = App.Placement(App.Vector(0, 0, 20), App.Rotation())
sketch16.addGeometry([
    Part.LineSegment(App.Vector(16, 2, 0), App.Vector(-15, 2, 0)),  # 0
    Part.LineSegment(App.Vector(-15, 2, 0), App.Vector(-15, 9, 0)),  # 1
    Part.LineSegment(App.Vector(-15, 9, 0), App.Vector(-5, 9, 0)),  # 2
    Part.LineSegment(App.Vector(-5, 9, 0), App.Vector(-5, 3, 0)),  # 3
    Part.LineSegment(App.Vector(-5, 3, 0), App.Vector(6, 3, 0)),  # 4
    Part.LineSegment(App.Vector(6, 3, 0), App.Vector(6, 9, 0)),  # 5
    Part.LineSegment(App.Vector(6, 9, 0), App.Vector(16, 9, 0)),  # 6
    Part.LineSegment(App.Vector(16, 9, 0), App.Vector(16, 2, 0)),  # 7
    Part.Circle(App.Vector(-10, 7, 0), App.Vector(0, 0, 1), 1.1),  # 8
    Part.Circle(App.Vector(11, 7, 0), App.Vector(0, 0, 1), 1.1),  # 9
], False)
sketch16.addConstraint([
    Sketcher.Constraint("Coincident", 0, 2, 1, 1),
    Sketcher.Constraint("Coincident", 1, 2, 2, 1),
    Sketcher.Constraint("Coincident", 2, 2, 3, 1),
    Sketcher.Constraint("Coincident", 3, 2, 4, 1),
    Sketcher.Constraint("Coincident", 4, 2, 5, 1),
    Sketcher.Constraint("Coincident", 5, 2, 6, 1),
    Sketcher.Constraint("Coincident", 6, 2, 7, 1),
    Sketcher.Constraint("Coincident", 7, 2, 0, 1),
    Sketcher.Constraint("Horizontal", 0),
    Sketcher.Constraint("Vertical", 1),
    Sketcher.Constraint("Horizontal", 2),
    Sketcher.Constraint("Vertical", 3),
    Sketcher.Constraint("Horizontal", 4),
    Sketcher.Constraint("Vertical", 5),
    Sketcher.Constraint("Horizontal", 6),
    Sketcher.Constraint("Vertical", 7),
    Sketcher.Constraint("Equal", 8, 9),
    Sketcher.Constraint("Horizontal", 8, 3, 9, 3),
    Sketcher.Constraint("Horizontal", 2, 2, 5, 2),
    Sketcher.Constraint("Equal", 2, 6),
    Sketcher.Constraint("Diameter", 8, Q("2.3 mm")),
    Sketcher.Constraint("DistanceX", 0, 2, 0, 1, Q("31 mm")),
    Sketcher.Constraint("DistanceX", 2, 1, 2, 2, Q("10 mm")),
    Sketcher.Constraint("DistanceY", 1, 1, 1, 2, Q("7 mm")),
    Sketcher.Constraint("DistanceY", 3, 2, 3, 1, Q("6 mm")),
    Sketcher.Constraint("DistanceX", 8, 3, -1, 1, Q("10 mm")),
    Sketcher.Constraint("DistanceY", -1, 1, 8, 3, Q("7 mm")),
    Sketcher.Constraint("DistanceX", -1, 1, 9, 3, Q("11 mm")),
    Sketcher.Constraint("DistanceX", 0, 2, -1, 1, Q("15 mm")),
    Sketcher.Constraint("DistanceY", -1, 1, 0, 2, Q("2 mm")),
])
pocket8 = body.newObject("PartDesign::Pocket", "Pocket007")
pocket8.Profile = sketch16
pocket8.Length = 0.2
pocket8.Reversed = True

# Sketch on XZ plane
sketch17 = body.newObject("Sketcher::SketchObject", "Sketch016")
sketch17.AttachmentSupport = (doc.getObject("XZ_Plane"), [""])
sketch17.MapMode = "FlatFace"
sketch17.AttachmentOffset = App.Placement(App.Vector(0, 0, -27.2), App.Rotation())
sketch17.addGeometry([
    Part.LineSegment(App.Vector(-15, 2, 0), App.Vector(16, 2, 0)),  # 0
    Part.LineSegment(App.Vector(16, 2, 0), App.Vector(16, 9, 0)),  # 1
    Part.LineSegment(App.Vector(16, 9, 0), App.Vector(-15, 9, 0)),  # 2
    Part.LineSegment(App.Vector(-15, 9, 0), App.Vector(-15, 2, 0)),  # 3
    Part.Circle(App.Vector(-10, 7, 0), App.Vector(0, 0, 1), 1.1),  # 4
    Part.Circle(App.Vector(0.5, 7, 0), App.Vector(0, 0, 1), 1.1),  # 5
    Part.Circle(App.Vector(11, 7, 0), App.Vector(0, 0, 1), 1.1),  # 6
], False)
sketch17.addConstraint([
    Sketcher.Constraint("Coincident", 0, 2, 1, 1),
    Sketcher.Constraint("Coincident", 1, 2, 2, 1),
    Sketcher.Constraint("Coincident", 2, 2, 3, 1),
    Sketcher.Constraint("Coincident", 3, 2, 0, 1),
    Sketcher.Constraint("Horizontal", 0),
    Sketcher.Constraint("Vertical", 1),
    Sketcher.Constraint("Horizontal", 2),
    Sketcher.Constraint("Vertical", 3),
    Sketcher.Constraint("Equal", 4, 5),
    Sketcher.Constraint("Equal", 5, 6),
    Sketcher.Constraint("Horizontal", 4, 3, 5, 3),
    Sketcher.Constraint("Horizontal", 5, 3, 6, 3),
    Sketcher.Constraint("Diameter", 4, Q("2.3 mm")),
    Sketcher.Constraint("DistanceX", 0, 1, 0, 2, Q("31 mm")),
    Sketcher.Constraint("DistanceY", 1, 1, 1, 2, Q("7 mm")),
    Sketcher.Constraint("DistanceX", 4, 3, -1, 1, Q("10 mm")),
    Sketcher.Constraint("DistanceY", -1, 1, 4, 3, Q("7 mm")),
    Sketcher.Constraint("DistanceX", -1, 1, 6, 3, Q("11 mm")),
    Sketcher.Constraint("DistanceX", -1, 1, 0, 2, Q("16 mm")),
    Sketcher.Constraint("DistanceY", -1, 1, 0, 2, Q("2 mm")),
    Sketcher.Constraint("DistanceX", -1, 1, 5, 3, Q("0.5 mm")),
])
pocket9 = body.newObject("PartDesign::Pocket", "Pocket008")
pocket9.Profile = sketch17
pocket9.Length = 0.2
pocket9.Reversed = True

doc.recompute()
